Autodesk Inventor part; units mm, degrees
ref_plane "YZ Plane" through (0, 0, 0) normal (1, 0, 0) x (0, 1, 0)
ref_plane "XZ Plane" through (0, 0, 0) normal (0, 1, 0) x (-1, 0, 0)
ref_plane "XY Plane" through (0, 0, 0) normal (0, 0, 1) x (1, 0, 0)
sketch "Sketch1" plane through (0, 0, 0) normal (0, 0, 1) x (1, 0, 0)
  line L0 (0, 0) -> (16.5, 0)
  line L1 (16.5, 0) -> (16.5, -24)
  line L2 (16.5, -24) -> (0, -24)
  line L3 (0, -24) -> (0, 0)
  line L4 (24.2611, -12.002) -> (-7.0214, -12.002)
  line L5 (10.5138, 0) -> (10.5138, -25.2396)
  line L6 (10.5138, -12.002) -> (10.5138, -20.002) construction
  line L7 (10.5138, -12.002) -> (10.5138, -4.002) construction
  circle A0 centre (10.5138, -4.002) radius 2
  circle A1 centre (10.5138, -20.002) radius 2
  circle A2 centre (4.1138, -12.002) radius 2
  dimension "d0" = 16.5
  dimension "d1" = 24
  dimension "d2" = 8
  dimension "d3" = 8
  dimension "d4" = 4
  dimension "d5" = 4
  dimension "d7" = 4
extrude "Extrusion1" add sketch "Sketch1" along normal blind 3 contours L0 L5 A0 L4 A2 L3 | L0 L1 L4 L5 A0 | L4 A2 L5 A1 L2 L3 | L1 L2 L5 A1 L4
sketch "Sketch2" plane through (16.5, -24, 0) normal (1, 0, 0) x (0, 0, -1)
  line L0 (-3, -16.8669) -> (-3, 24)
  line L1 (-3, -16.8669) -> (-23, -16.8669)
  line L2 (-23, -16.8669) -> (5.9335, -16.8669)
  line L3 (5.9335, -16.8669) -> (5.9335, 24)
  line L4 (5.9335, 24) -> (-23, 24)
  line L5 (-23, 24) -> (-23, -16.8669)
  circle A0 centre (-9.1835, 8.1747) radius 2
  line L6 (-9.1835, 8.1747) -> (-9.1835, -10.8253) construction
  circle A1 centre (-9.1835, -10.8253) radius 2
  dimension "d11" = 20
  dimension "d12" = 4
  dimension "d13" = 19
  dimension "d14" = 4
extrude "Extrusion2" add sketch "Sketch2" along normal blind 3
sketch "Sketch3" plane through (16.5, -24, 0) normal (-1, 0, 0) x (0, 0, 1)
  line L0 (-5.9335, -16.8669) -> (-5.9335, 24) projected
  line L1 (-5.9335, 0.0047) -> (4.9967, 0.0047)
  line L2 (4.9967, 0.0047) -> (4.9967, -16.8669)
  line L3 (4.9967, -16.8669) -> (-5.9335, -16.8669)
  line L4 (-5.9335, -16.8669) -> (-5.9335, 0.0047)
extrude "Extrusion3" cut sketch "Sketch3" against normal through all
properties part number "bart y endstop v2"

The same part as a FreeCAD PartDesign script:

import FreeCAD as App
import Part
import Sketcher

doc = App.newDocument("Part")
body = doc.addObject("PartDesign::Body", "Body")

# Sketch on XY plane
sketch1 = doc.addObject("Sketcher::SketchObject", "Sketch")
body.addObject(sketch1)
sketch1.AttachmentSupport = (doc.XY_Plane, [""])
sketch1.MapMode = "FlatFace"
sketch1.addGeometry([
    Part.LineSegment(App.Vector(0, 0, 0), App.Vector(0, -24, 0)),  # 0
    Part.LineSegment(App.Vector(0, -24, 0), App.Vector(16.5, -24, 0)),  # 1
    Part.LineSegment(App.Vector(16.5, -24, 0), App.Vector(16.5, 0, 0)),  # 2
    Part.LineSegment(App.Vector(16.5, 0, 0), App.Vector(0, 0, 0)),  # 3
    Part.Circle(App.Vector(10.5138, -4.002, 0), App.Vector(0, 0, 1), 2),  # 4
    Part.Circle(App.Vector(4.1138, -12.002, 0), App.Vector(0, 0, 1), 2),  # 5
    Part.Circle(App.Vector(10.5138, -20.002, 0), App.Vector(0, 0, 1), 2),  # 6
], False)
sketch1.addConstraint([
    Sketcher.Constraint("Coincident", 0, 2, 1, 1),
    Sketcher.Constraint("Coincident", 1, 2, 2, 1),
    Sketcher.Constraint("Coincident", 2, 2, 3, 1),
    Sketcher.Constraint("Coincident", 3, 2, 0, 1),
    Sketcher.Constraint("Vertical", 0),
    Sketcher.Constraint("Horizontal", 1),
    Sketcher.Constraint("Vertical", 2),
    Sketcher.Constraint("Horizontal", 3),
    Sketcher.Constraint("Coincident", 3, 2, -1, 1),
    Sketcher.Constraint("Equal", 4, 5),
    Sketcher.Constraint("Equal", 5, 6),
    Sketcher.Constraint("Vertical", 4, 3, 6, 3),
    Sketcher.Constraint("Diameter", 4, 4.0),
    Sketcher.Constraint("DistanceY", 0, 2, 0, 1, 24.0),
    Sketcher.Constraint("DistanceX", 1, 1, 1, 2, 16.5),
    Sketcher.Constraint("DistanceY", 5, 3, 4, 3, 8.0),
    Sketcher.Constraint("DistanceY", 6, 3, 5, 3, 8.0),
    Sketcher.Constraint("DistanceX", 5, 3, 4, 3, 6.4),
    Sketcher.Constraint("DistanceY", 4, 3, -1, 1, 4.002),
    Sketcher.Constraint("DistanceX", -1, 1, 4, 3, 10.5138),
])
pad1 = doc.addObject("PartDesign::Pad", "Pad")
body.addObject(pad1)
pad1.Profile = sketch1
pad1.Length = 3

# Sketch on YZ plane
sketch2 = doc.addObject("Sketcher::SketchObject", "Sketch001")
body.addObject(sketch2)
sketch2.AttachmentSupport = (doc.YZ_Plane, [""])
sketch2.MapMode = "FlatFace"
sketch2.AttachmentOffset = App.Placement(App.Vector(0, 0, 16.5), App.Rotation())
sketch2.addGeometry([
    Part.LineSegment(App.Vector(-40.8669, 23, 0), App.Vector(-40.8669, -5.9335, 0)),  # 0
    Part.LineSegment(App.Vector(-40.8669, -5.9335, 0), App.Vector(0, -5.9335, 0)),  # 1
    Part.LineSegment(App.Vector(0, -5.9335, 0), App.Vector(0, 23, 0)),  # 2
    Part.LineSegment(App.Vector(0, 23, 0), App.Vector(-40.8669, 23, 0)),  # 3
    Part.Circle(App.Vector(-34.8253, 9.1835, 0), App.Vector(0, 0, 1), 2),  # 4
    Part.Circle(App.Vector(-15.8253, 9.1835, 0), App.Vector(0, 0, 1), 2),  # 5
], False)
sketch2.addConstraint([
    Sketcher.Constraint("Coincident", 0, 2, 1, 1),
    Sketcher.Constraint("Coincident", 1, 2, 2, 1),
    Sketcher.Constraint("Coincident", 2, 2, 3, 1),
    Sketcher.Constraint("Coincident", 3, 2, 0, 1),
    Sketcher.Constraint("Vertical", 0),
    Sketcher.Constraint("Horizontal", 1),
    Sketcher.Constraint("Vertical", 2),
    Sketcher.Constraint("Horizontal", 3),
    Sketcher.Constraint("Equal", 4, 5),
    Sketcher.Constraint("PointOnObject", 1, 2, -2),
    Sketcher.Constraint("Horizontal", 4, 3, 5, 3),
    Sketcher.Constraint("Diameter", 4, 4.0),
    Sketcher.Constraint("DistanceX", 4, 3, 5, 3, 19.0),
    Sketcher.Constraint("DistanceY", -1, 1, 2, 2, 23.0),
    Sketcher.Constraint("DistanceX", 1, 1, 1, 2, 40.867),
    Sketcher.Constraint("DistanceY", 0, 2, 0, 1, 28.9335),
    Sketcher.Constraint("DistanceY", 0, 2, 4, 3, 15.117),
    Sketcher.Constraint("DistanceX", 4, 3, -1, 1, 34.8253),
])
pad2 = doc.addObject("PartDesign::Pad", "Pad001")
body.addObject(pad2)
pad2.Profile = sketch2
pad2.Length = 3

# Sketch on YZ plane
sketch3 = doc.addObject("Sketcher::SketchObject", "Sketch002")
body.addObject(sketch3)
sketch3.AttachmentSupport = (doc.YZ_Plane, [""])
sketch3.MapMode = "FlatFace"
sketch3.AttachmentOffset = App.Placement(App.Vector(0, 0, 16.5), App.Rotation())
sketch3.addGeometry([
    Part.LineSegment(App.Vector(-23.9953, -5.9335, 0), App.Vector(-40.8669, -5.9335, 0)),
    Part.LineSegment(App.Vector(-40.8669, -5.9335, 0), App.Vector(-40.8669, 4.9967, 0)),
    Part.LineSegment(App.Vector(-40.8669, 4.9967, 0), App.Vector(-23.9953, 4.9967, 0)),
    Part.LineSegment(App.Vector(-23.9953, 4.9967, 0), App.Vector(-23.9953, -5.9335, 0)),
], False)
sketch3.addConstraint([
    Sketcher.Constraint("Coincident", 0, 2, 1, 1),
    Sketcher.Constraint("Coincident", 1, 2, 2, 1),
    Sketcher.Constraint("Coincident", 2, 2, 3, 1),
    Sketcher.Constraint("Coincident", 3, 2, 0, 1),
    Sketcher.Constraint("Horizontal", 0),
    Sketcher.Constraint("Vertical", 1),
    Sketcher.Constraint("Horizontal", 2),
    Sketcher.Constraint("Vertical", 3),
    Sketcher.Constraint("DistanceX", 0, 2, 0, 1, 16.8716),
    Sketcher.Constraint("DistanceY", 1, 1, 1, 2, 10.9302),
    Sketcher.Constraint("DistanceX", 0, 2, -1, 1, 40.867),
    Sketcher.Constraint("DistanceY", 0, 2, -1, 1, 5.9335),
])
pocket1 = doc.addObject("PartDesign::Pocket", "Pocket")
body.addObject(pocket1)
pocket1.Profile = sketch3
pocket1.Type = "ThroughAll"
pocket1.Reversed = True

doc.recompute()
